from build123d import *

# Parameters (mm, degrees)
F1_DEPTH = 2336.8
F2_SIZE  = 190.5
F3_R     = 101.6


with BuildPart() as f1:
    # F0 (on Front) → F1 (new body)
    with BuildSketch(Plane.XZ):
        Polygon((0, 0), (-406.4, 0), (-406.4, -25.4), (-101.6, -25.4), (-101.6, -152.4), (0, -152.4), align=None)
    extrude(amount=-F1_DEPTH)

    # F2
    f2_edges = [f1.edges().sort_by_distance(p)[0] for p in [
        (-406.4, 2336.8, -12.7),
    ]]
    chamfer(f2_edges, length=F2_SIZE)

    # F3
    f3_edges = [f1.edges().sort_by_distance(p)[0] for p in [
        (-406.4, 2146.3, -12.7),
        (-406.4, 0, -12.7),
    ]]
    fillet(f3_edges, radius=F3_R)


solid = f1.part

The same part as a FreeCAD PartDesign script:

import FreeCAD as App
import Part
import Sketcher

V = App.Vector
Q = App.Units.Quantity


def edges_at(feature, points):
    """Names of the edges that pass closest to the given points."""
    edges = feature.Shape.Edges
    near = lambda p: min(range(len(edges)), key=lambda i: edges[i].distToShape(Part.Vertex(*p))[0])
    return sorted({f"Edge{near(p) + 1}" for p in points})

doc = App.newDocument("Part")
params = doc.addObject("Spreadsheet::Sheet", "Params")
for row, (alias, value) in enumerate([
    ("sketch1_width", "16 in"),
    ("sketch1_width2", "12 in"),
    ("sketch1_height", "1 in"),
    ("sketch1_height2", "5 in"),
    ("pad1_length", "92 in"),
    ("chamfer_size", "7.5 in"),
    ("fillet_radius", "4 in"),
], start=1):
    params.set(f"A{row}", alias)
    params.set(f"B{row}", "=" + value)
    params.setAlias(f"B{row}", alias)

body = doc.addObject("PartDesign::Body", "Body")

# Sketch on XZ plane
sketch1 = body.newObject("Sketcher::SketchObject", "Sketch")
sketch1.AttachmentSupport = (doc.getObject("XZ_Plane"), [""])
sketch1.MapMode = "FlatFace"
sketch1.addGeometry(Part.LineSegment(V(0, 0, 0), V(-406, 0, 0)), False)
sketch1.addGeometry(Part.LineSegment(V(-406, 0, 0), V(-406, -25, 0)), False)
sketch1.addGeometry(Part.LineSegment(V(-406, -25, 0), V(-102, -25, 0)), False)
sketch1.addGeometry(Part.LineSegment(V(-102, -25, 0), V(-102, -152, 0)), False)
sketch1.addGeometry(Part.LineSegment(V(-102, -152, 0), V(0, -152, 0)), False)
sketch1.addGeometry(Part.LineSegment(V(0, -152, 0), V(0, 0, 0)), False)
sketch1.addConstraint(Sketcher.Constraint("Coincident", 0, 2, 1, 1))
sketch1.addConstraint(Sketcher.Constraint("Coincident", 1, 2, 2, 1))
sketch1.addConstraint(Sketcher.Constraint("Coincident", 2, 2, 3, 1))
sketch1.addConstraint(Sketcher.Constraint("Coincident", 3, 2, 4, 1))
sketch1.addConstraint(Sketcher.Constraint("Coincident", 4, 2, 5, 1))
sketch1.addConstraint(Sketcher.Constraint("Coincident", 5, 2, 0, 1))
sketch1.addConstraint(Sketcher.Constraint("Horizontal", 0))
sketch1.addConstraint(Sketcher.Constraint("Vertical", 1))
sketch1.addConstraint(Sketcher.Constraint("Horizontal", 2))
sketch1.addConstraint(Sketcher.Constraint("Vertical", 3))
sketch1.addConstraint(Sketcher.Constraint("Horizontal", 4))
sketch1.addConstraint(Sketcher.Constraint("Vertical", 5))
sketch1.addConstraint(Sketcher.Constraint("Coincident", 5, 2, -1, 1))
sketch1.addConstraint(Sketcher.Constraint("DistanceX", 0, 2, 0, 1, Q("16 in")))
sketch1.addConstraint(Sketcher.Constraint("DistanceX", 2, 1, 2, 2, Q("12 in")))
sketch1.addConstraint(Sketcher.Constraint("DistanceY", 1, 2, 1, 1, Q("1 in")))
sketch1.addConstraint(Sketcher.Constraint("DistanceY", 3, 2, 3, 1, Q("5 in")))
sketch1.setExpression("Constraints[13]", "Params.sketch1_width")
sketch1.setExpression("Constraints[14]", "Params.sketch1_width2")
sketch1.setExpression("Constraints[15]", "Params.sketch1_height")
sketch1.setExpression("Constraints[16]", "Params.sketch1_height2")
pad1 = body.newObject("PartDesign::Pad", "Pad")
pad1.Profile = sketch1
pad1.setExpression("Length", "Params.pad1_length")
pad1.Reversed = True
doc.recompute()

chamfer = body.newObject("PartDesign::Chamfer", "Chamfer")
chamfer.Base = (pad1, edges_at(pad1, [(-406.4, 2336.8, -12.7)]))
chamfer.setExpression("Size", "Params.chamfer_size")
doc.recompute()

fillet = body.newObject("PartDesign::Fillet", "Fillet")
fillet.Base = (chamfer, edges_at(chamfer, [(-406.4, 2146.3, -12.7), (-406.4, 0, -12.7)]))
fillet.setExpression("Radius", "Params.fillet_radius")

doc.recompute()
